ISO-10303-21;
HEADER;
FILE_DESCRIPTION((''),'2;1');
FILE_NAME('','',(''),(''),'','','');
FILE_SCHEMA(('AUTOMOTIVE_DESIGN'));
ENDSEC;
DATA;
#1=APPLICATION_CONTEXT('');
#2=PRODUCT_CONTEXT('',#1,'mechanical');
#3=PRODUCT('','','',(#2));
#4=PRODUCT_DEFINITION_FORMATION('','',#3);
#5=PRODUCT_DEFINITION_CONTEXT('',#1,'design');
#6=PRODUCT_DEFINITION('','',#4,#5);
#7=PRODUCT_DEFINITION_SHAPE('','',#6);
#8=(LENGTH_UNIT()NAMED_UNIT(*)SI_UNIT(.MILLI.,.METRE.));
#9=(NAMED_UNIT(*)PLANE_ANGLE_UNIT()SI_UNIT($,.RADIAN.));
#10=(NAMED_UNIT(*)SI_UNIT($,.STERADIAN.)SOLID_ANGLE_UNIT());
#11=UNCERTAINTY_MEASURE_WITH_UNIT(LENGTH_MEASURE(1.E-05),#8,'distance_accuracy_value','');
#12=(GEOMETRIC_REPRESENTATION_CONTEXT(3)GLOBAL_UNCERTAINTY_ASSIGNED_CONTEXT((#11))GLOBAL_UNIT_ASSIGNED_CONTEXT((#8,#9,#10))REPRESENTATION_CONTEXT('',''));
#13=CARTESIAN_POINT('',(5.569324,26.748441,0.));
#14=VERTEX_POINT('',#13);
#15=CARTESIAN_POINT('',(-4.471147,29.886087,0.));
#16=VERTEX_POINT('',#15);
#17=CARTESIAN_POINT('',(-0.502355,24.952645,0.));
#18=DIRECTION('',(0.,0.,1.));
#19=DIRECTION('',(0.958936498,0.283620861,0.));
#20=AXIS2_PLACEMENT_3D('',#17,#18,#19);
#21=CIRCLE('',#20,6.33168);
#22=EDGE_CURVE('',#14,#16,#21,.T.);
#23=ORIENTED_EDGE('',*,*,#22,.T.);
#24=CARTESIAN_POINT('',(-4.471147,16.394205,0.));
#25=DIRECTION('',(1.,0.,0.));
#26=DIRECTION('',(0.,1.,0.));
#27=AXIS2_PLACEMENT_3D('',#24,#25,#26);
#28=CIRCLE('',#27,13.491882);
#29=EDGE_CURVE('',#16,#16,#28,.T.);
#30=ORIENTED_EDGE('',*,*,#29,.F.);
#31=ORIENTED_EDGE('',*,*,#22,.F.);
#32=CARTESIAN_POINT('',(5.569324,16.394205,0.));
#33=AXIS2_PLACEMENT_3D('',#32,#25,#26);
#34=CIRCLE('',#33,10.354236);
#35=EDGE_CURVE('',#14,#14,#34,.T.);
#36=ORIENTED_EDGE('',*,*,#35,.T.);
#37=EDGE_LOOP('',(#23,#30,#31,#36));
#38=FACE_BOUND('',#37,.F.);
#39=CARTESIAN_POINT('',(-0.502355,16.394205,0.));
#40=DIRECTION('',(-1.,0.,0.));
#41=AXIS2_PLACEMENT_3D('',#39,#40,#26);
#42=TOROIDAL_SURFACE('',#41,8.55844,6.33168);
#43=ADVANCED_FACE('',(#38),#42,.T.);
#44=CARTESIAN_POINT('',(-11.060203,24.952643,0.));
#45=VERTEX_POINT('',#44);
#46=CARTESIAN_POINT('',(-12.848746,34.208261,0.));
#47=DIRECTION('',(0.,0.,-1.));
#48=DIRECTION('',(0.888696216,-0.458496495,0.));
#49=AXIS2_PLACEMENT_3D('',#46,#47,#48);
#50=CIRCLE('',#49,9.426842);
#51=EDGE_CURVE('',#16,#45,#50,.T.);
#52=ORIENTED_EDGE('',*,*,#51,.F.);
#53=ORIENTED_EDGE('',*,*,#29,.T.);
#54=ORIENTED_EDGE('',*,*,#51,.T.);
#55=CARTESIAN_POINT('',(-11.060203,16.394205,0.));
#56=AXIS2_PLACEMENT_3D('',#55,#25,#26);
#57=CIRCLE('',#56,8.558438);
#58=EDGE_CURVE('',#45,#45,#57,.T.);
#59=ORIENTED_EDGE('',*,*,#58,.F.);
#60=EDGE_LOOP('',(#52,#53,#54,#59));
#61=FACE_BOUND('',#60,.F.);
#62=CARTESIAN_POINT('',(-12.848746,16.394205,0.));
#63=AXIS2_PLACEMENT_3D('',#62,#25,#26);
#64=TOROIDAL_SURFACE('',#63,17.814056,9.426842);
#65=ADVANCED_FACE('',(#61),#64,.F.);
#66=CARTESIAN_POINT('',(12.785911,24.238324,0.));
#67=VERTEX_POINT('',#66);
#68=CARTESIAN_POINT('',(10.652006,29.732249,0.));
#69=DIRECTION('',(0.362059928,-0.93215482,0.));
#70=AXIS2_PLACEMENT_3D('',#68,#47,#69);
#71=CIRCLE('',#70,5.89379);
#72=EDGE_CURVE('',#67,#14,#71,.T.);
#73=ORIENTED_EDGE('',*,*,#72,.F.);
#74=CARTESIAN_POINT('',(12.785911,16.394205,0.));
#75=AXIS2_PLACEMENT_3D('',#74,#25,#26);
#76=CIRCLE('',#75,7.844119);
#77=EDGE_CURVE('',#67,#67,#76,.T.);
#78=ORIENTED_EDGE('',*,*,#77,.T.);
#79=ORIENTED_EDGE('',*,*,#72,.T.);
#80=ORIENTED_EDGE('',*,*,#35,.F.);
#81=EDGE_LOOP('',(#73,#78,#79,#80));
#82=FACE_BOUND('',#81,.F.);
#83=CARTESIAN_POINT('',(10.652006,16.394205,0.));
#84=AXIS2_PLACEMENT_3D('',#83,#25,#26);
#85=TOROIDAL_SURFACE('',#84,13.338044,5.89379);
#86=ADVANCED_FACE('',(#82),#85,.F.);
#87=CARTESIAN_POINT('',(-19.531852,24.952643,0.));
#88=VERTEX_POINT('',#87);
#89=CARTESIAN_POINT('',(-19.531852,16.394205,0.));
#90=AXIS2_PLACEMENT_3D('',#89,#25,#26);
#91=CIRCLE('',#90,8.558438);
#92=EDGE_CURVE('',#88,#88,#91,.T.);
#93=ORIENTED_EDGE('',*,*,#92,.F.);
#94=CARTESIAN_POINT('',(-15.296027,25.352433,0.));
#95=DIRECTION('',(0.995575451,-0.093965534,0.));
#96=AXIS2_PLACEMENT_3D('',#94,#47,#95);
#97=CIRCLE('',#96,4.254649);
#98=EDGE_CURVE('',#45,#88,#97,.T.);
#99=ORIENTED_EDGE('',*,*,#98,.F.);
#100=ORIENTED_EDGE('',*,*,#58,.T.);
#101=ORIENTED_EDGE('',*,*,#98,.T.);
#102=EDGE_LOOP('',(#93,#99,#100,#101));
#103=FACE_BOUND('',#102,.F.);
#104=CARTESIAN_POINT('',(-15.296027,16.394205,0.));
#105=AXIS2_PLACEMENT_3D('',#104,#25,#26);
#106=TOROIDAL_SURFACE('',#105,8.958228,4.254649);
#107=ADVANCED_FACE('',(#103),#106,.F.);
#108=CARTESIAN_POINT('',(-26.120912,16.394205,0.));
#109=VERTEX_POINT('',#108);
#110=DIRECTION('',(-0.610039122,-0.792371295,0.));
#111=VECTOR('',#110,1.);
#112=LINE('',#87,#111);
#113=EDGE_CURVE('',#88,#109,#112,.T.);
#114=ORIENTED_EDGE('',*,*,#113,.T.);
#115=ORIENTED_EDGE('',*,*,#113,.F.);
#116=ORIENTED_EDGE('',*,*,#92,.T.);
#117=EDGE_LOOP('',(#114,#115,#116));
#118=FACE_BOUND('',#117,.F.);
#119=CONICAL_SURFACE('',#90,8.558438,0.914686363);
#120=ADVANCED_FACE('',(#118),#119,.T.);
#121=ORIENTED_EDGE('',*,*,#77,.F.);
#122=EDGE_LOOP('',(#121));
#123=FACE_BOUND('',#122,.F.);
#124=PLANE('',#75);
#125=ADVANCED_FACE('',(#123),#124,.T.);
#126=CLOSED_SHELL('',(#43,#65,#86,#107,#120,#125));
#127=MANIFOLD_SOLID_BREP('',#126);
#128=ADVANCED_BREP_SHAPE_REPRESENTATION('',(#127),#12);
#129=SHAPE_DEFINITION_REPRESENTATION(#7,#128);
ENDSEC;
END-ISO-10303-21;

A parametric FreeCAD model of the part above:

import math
import FreeCAD as App
import Part
import Sketcher
Q = App.Units.Quantity

doc = App.newDocument("Part")
body = doc.addObject("PartDesign::Body", "Body")

# Sketch on XY plane
sketch1 = doc.addObject("Sketcher::SketchObject", "Sketch")
body.addObject(sketch1)
sketch1.AttachmentSupport = (doc.XY_Plane, [""])
sketch1.MapMode = "FlatFace"
sketch1.addGeometry([
    Part.LineSegment(App.Vector(-19.5, 25, 0), App.Vector(-26.1, 16.4, 0)),  # 0
    Part.LineSegment(App.Vector(-26.1, 16.4, 0), App.Vector(12.8, 16.4, 0)),  # 1
    Part.LineSegment(App.Vector(12.8, 16.4, 0), App.Vector(12.8, 24.2, 0)),  # 2
    Part.ArcOfCircle(Part.Circle(App.Vector(10.7, 29.7, 0), App.Vector(0, 0, 1), 5.9), math.radians(-150), math.radians(-69)),  # 3
    Part.ArcOfCircle(Part.Circle(App.Vector(-0.5, 25, 0), App.Vector(0, 0, 1), 6.3), math.radians(16), math.radians(129)),  # 4
    Part.ArcOfCircle(Part.Circle(App.Vector(-12.8, 34.2, 0), App.Vector(0, 0, 1), 9.4), math.radians(-79), math.radians(-27)),  # 5
    Part.ArcOfCircle(Part.Circle(App.Vector(-15.3, 25.4, 0), App.Vector(0, 0, 1), 4.3), math.radians(-175), math.radians(-5)),  # 6
], False)
sketch1.addGeometry(Part.LineSegment(App.Vector(-26.1, 16.4, 0), App.Vector(12.8, 16.4, 0)), True)  # axis
sketch1.addConstraint([
    Sketcher.Constraint("Coincident", 0, 2, 1, 1),
    Sketcher.Constraint("Coincident", 1, 2, 2, 1),
    Sketcher.Constraint("Coincident", 2, 2, 3, 2),
    Sketcher.Constraint("Coincident", 3, 1, 4, 1),
    Sketcher.Constraint("Coincident", 4, 2, 5, 2),
    Sketcher.Constraint("Coincident", 5, 1, 6, 2),
    Sketcher.Constraint("Coincident", 6, 1, 0, 1),
    Sketcher.Constraint("Horizontal", 1),
    Sketcher.Constraint("Vertical", 2),
    Sketcher.Constraint("Horizontal", 7),
    Sketcher.Constraint("Coincident", 7, 1, 0, 2),
    Sketcher.Constraint("Horizontal", 4, 3, 5, 1),
    Sketcher.Constraint("Horizontal", 5, 1, 6, 1),
    Sketcher.Constraint("Vertical", 2, 2, 7, 2),
    Sketcher.Constraint("Radius", 3, Q("5.89379 mm")),
    Sketcher.Constraint("Radius", 4, Q("6.33168 mm")),
    Sketcher.Constraint("Radius", 6, Q("4.254649 mm")),
    Sketcher.Constraint("Radius", 5, Q("9.426842 mm")),
    Sketcher.Constraint("DistanceY", 2, 1, 2, 2, Q("7.844119 mm")),
    Sketcher.Constraint("DistanceX", 5, 3, 4, 2, Q("8.377599 mm")),
    Sketcher.Constraint("DistanceX", 1, 1, 1, 2, Q("38.906823 mm")),
    Sketcher.Constraint("DistanceY", -1, 1, 3, 3, Q("29.732249 mm")),
    Sketcher.Constraint("DistanceY", -1, 1, 5, 3, Q("34.208261 mm")),
    Sketcher.Constraint("DistanceX", -1, 1, 1, 2, Q("12.785911 mm")),
    Sketcher.Constraint("DistanceY", -1, 1, 3, 1, Q("26.748441 mm")),
    Sketcher.Constraint("DistanceX", 6, 1, -1, 1, Q("19.531852 mm")),
    Sketcher.Constraint("DistanceX", 4, 3, 3, 3, Q("11.15436 mm")),
    Sketcher.Constraint("DistanceX", 6, 3, 5, 3, Q("2.447282 mm")),
])
revolution = doc.addObject("PartDesign::Revolution", "Revolution")
body.addObject(revolution)
revolution.Profile = sketch1
revolution.ReferenceAxis = (sketch1, ["Axis0"])
revolution.Angle = 360

doc.recompute()
